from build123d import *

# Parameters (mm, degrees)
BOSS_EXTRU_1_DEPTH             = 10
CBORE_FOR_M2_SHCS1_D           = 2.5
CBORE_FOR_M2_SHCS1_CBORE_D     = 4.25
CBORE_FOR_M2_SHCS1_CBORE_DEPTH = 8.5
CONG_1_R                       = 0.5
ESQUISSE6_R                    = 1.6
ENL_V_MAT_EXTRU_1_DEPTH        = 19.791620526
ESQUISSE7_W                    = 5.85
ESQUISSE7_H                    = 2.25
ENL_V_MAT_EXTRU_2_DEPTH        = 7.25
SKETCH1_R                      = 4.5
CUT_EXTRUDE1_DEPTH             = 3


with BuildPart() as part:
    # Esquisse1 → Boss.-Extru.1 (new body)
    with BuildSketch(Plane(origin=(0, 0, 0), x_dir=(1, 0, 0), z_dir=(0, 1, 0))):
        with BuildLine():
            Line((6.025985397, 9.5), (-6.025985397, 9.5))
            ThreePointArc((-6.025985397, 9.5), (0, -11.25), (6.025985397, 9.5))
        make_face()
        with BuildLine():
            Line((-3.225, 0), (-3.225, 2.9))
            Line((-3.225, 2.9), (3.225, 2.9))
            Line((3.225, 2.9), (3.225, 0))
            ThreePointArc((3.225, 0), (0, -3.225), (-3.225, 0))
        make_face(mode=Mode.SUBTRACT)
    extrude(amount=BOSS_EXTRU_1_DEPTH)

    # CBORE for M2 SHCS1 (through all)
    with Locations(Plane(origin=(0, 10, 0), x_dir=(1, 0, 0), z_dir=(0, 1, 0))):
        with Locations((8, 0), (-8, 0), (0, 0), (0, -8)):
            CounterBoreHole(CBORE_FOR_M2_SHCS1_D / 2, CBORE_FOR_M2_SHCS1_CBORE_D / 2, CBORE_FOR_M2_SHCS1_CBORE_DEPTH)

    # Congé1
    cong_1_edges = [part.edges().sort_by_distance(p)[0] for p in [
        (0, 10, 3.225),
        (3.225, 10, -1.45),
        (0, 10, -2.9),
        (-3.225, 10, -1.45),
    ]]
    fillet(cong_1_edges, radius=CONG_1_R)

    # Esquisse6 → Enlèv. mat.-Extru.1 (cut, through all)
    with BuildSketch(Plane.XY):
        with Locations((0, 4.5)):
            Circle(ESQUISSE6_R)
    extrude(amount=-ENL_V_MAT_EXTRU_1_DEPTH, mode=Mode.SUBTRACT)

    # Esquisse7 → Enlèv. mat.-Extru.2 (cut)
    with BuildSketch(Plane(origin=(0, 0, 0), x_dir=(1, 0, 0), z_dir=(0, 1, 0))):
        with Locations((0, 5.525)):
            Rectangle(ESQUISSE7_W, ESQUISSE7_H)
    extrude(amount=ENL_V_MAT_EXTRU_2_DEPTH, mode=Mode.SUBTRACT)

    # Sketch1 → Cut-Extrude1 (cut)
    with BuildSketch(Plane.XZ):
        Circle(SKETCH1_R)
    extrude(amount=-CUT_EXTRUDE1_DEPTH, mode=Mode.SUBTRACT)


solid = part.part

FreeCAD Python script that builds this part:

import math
import FreeCAD as App
import Part
import Sketcher
from FreeCAD import Vector
Q = App.Units.Quantity


def edges_at(feature, points):
    """Names of the edges that pass closest to the given points."""
    edges = feature.Shape.Edges
    near = lambda p: min(range(len(edges)), key=lambda i: edges[i].distToShape(Part.Vertex(*p))[0])
    return sorted({f"Edge{near(p) + 1}" for p in points})

doc = App.newDocument("Part")
body = doc.addObject("PartDesign::Body", "Body")

# Sketch on XZ plane
sketch1 = body.newObject("Sketcher::SketchObject", "Sketch")
sketch1.AttachmentSupport = (doc.getObject("XZ_Plane"), [""])
sketch1.MapMode = "FlatFace"
sketch1.addGeometry([
    Part.LineSegment(Vector(6, -9.5, 0), Vector(-6, -9.5, 0)),  # 0
    Part.ArcOfCircle(Part.Circle(Vector(0, 0, 0), Vector(0, 0, 1), 11.2), math.radians(-58), math.radians(238)),  # 1
    Part.ArcOfCircle(Part.Circle(Vector(0, 0, 0), Vector(0, 0, 1), 3.2), math.radians(0), math.radians(180)),  # 2
    Part.LineSegment(Vector(-3.2, 0, 0), Vector(-3.2, -2.9, 0)),  # 3
    Part.LineSegment(Vector(-3.2, -2.9, 0), Vector(3.2, -2.9, 0)),  # 4
    Part.LineSegment(Vector(3.2, -2.9, 0), Vector(3.2, 0, 0)),  # 5
], False)
sketch1.addConstraint([
    Sketcher.Constraint("Coincident", 0, 1, 1, 1),
    Sketcher.Constraint("Coincident", 1, 2, 0, 2),
    Sketcher.Constraint("Tangent", 2, 2, 3, 1),
    Sketcher.Constraint("Coincident", 3, 2, 4, 1),
    Sketcher.Constraint("Coincident", 4, 2, 5, 1),
    Sketcher.Constraint("Tangent", 5, 2, 2, 1),
    Sketcher.Constraint("Horizontal", 0),
    Sketcher.Constraint("Vertical", 3),
    Sketcher.Constraint("Horizontal", 4),
    Sketcher.Constraint("Vertical", 5),
    Sketcher.Constraint("Coincident", 1, 3, -1, 1),
    Sketcher.Constraint("Coincident", 2, 3, -1, 1),
    Sketcher.Constraint("Radius", 1, Q("11.25 mm")),
    Sketcher.Constraint("DistanceY", 3, 2, 3, 1, Q("2.9 mm")),
    Sketcher.Constraint("Radius", 2, Q("3.225 mm")),
    Sketcher.Constraint("DistanceY", 0, 1, -1, 1, Q("9.5 mm")),
])
pad1 = body.newObject("PartDesign::Pad", "Pad")
pad1.Profile = sketch1
pad1.Length = 10
pad1.Reversed = True

# Sketch on XZ plane
sketch2 = body.newObject("Sketcher::SketchObject", "Sketch001")
sketch2.AttachmentSupport = (doc.getObject("XZ_Plane"), [""])
sketch2.MapMode = "FlatFace"
sketch2.AttachmentOffset = App.Placement(Vector(0, 0, -10), App.Rotation())
sketch2.addGeometry([
    Part.Circle(Vector(8, 0, 0), Vector(0, 0, 1), 1.2),
    Part.Circle(Vector(-8, 0, 0), Vector(0, 0, 1), 1.2),
    Part.Circle(Vector(0, 0, 0), Vector(0, 0, 1), 1.2),
    Part.Circle(Vector(0, 8, 0), Vector(0, 0, 1), 1.2),
], False)
sketch2.addConstraint([
    Sketcher.Constraint("Coincident", 2, 3, -1, 1),
    Sketcher.Constraint("Equal", 0, 1),
    Sketcher.Constraint("Equal", 1, 2),
    Sketcher.Constraint("Equal", 2, 3),
    Sketcher.Constraint("Symmetric", 0, 3, 1, 3, -1, 1),
    Sketcher.Constraint("PointOnObject", 0, 3, -1),
    Sketcher.Constraint("PointOnObject", 3, 3, -2),
    Sketcher.Constraint("Diameter", 0, Q("2.5 mm")),
    Sketcher.Constraint("DistanceX", -1, 1, 0, 3, Q("8 mm")),
    Sketcher.Constraint("DistanceY", -1, 1, 3, 3, Q("8 mm")),
])
doc.recompute()
hole = body.newObject("PartDesign::Hole", "Hole")
hole.Profile = sketch2
hole.ThreadType = "None"
hole.Diameter = 2.5
hole.DepthType = "ThroughAll"
hole.HoleCutType = "Counterbore"
hole.HoleCutDiameter = 4.25
hole.HoleCutDepth = 8.5
hole.Reversed = True
doc.recompute()

fillet = body.newObject("PartDesign::Fillet", "Fillet")
fillet.Base = (hole, edges_at(hole, [
    (0, 10, 3.225),
    (3.225, 10, -1.45),
    (0, 10, -2.9),
    (-3.225, 10, -1.45),
]))
fillet.Radius = 0.5

# Sketch on XY plane
sketch3 = body.newObject("Sketcher::SketchObject", "Sketch002")
sketch3.AttachmentSupport = (doc.getObject("XY_Plane"), [""])
sketch3.MapMode = "FlatFace"
sketch3.addGeometry(Part.Circle(Vector(0, 4.5, 0), Vector(0, 0, 1), 1.6), False)
sketch3.addConstraint([
    Sketcher.Constraint("PointOnObject", 0, 3, -2),
    Sketcher.Constraint("Diameter", 0, Q("3.2 mm")),
    Sketcher.Constraint("DistanceY", -1, 1, 0, 3, Q("4.5 mm")),
])
pocket1 = body.newObject("PartDesign::Pocket", "Pocket")
pocket1.Profile = sketch3
pocket1.Type = "ThroughAll"

# Sketch on XZ plane
sketch4 = body.newObject("Sketcher::SketchObject", "Sketch003")
sketch4.AttachmentSupport = (doc.getObject("XZ_Plane"), [""])
sketch4.MapMode = "FlatFace"
sketch4.addGeometry([
    Part.LineSegment(Vector(-2.9, -6.7, 0), Vector(-2.9, -4.4, 0)),
    Part.LineSegment(Vector(-2.9, -4.4, 0), Vector(2.9, -4.4, 0)),
    Part.LineSegment(Vector(2.9, -4.4, 0), Vector(2.9, -6.7, 0)),
    Part.LineSegment(Vector(2.9, -6.7, 0), Vector(-2.9, -6.7, 0)),
], False)
sketch4.addConstraint([
    Sketcher.Constraint("Coincident", 0, 2, 1, 1),
    Sketcher.Constraint("Coincident", 1, 2, 2, 1),
    Sketcher.Constraint("Coincident", 2, 2, 3, 1),
    Sketcher.Constraint("Coincident", 3, 2, 0, 1),
    Sketcher.Constraint("Vertical", 0),
    Sketcher.Constraint("Horizontal", 1),
    Sketcher.Constraint("Vertical", 2),
    Sketcher.Constraint("Horizontal", 3),
    Sketcher.Constraint("DistanceX", 1, 1, 1, 2, Q("5.85 mm")),
    Sketcher.Constraint("DistanceY", 0, 1, 0, 2, Q("2.25 mm")),
    Sketcher.Constraint("DistanceY", 0, 2, -1, 1, Q("4.4 mm")),
    Sketcher.Constraint("DistanceX", 0, 2, -1, 1, Q("2.925 mm")),
])
pocket2 = body.newObject("PartDesign::Pocket", "Pocket001")
pocket2.Profile = sketch4
pocket2.Length = 7.25

# Sketch on XZ plane
sketch5 = body.newObject("Sketcher::SketchObject", "Sketch004")
sketch5.AttachmentSupport = (doc.getObject("XZ_Plane"), [""])
sketch5.MapMode = "FlatFace"
sketch5.addGeometry(Part.Circle(Vector(0, 0, 0), Vector(0, 0, 1), 4.5), False)
sketch5.addConstraint([
    Sketcher.Constraint("Coincident", 0, 3, -1, 1),
    Sketcher.Constraint("Diameter", 0, Q("9 mm")),
])
pocket3 = body.newObject("PartDesign::Pocket", "Pocket002")
pocket3.Profile = sketch5
pocket3.Length = 3

doc.recompute()
